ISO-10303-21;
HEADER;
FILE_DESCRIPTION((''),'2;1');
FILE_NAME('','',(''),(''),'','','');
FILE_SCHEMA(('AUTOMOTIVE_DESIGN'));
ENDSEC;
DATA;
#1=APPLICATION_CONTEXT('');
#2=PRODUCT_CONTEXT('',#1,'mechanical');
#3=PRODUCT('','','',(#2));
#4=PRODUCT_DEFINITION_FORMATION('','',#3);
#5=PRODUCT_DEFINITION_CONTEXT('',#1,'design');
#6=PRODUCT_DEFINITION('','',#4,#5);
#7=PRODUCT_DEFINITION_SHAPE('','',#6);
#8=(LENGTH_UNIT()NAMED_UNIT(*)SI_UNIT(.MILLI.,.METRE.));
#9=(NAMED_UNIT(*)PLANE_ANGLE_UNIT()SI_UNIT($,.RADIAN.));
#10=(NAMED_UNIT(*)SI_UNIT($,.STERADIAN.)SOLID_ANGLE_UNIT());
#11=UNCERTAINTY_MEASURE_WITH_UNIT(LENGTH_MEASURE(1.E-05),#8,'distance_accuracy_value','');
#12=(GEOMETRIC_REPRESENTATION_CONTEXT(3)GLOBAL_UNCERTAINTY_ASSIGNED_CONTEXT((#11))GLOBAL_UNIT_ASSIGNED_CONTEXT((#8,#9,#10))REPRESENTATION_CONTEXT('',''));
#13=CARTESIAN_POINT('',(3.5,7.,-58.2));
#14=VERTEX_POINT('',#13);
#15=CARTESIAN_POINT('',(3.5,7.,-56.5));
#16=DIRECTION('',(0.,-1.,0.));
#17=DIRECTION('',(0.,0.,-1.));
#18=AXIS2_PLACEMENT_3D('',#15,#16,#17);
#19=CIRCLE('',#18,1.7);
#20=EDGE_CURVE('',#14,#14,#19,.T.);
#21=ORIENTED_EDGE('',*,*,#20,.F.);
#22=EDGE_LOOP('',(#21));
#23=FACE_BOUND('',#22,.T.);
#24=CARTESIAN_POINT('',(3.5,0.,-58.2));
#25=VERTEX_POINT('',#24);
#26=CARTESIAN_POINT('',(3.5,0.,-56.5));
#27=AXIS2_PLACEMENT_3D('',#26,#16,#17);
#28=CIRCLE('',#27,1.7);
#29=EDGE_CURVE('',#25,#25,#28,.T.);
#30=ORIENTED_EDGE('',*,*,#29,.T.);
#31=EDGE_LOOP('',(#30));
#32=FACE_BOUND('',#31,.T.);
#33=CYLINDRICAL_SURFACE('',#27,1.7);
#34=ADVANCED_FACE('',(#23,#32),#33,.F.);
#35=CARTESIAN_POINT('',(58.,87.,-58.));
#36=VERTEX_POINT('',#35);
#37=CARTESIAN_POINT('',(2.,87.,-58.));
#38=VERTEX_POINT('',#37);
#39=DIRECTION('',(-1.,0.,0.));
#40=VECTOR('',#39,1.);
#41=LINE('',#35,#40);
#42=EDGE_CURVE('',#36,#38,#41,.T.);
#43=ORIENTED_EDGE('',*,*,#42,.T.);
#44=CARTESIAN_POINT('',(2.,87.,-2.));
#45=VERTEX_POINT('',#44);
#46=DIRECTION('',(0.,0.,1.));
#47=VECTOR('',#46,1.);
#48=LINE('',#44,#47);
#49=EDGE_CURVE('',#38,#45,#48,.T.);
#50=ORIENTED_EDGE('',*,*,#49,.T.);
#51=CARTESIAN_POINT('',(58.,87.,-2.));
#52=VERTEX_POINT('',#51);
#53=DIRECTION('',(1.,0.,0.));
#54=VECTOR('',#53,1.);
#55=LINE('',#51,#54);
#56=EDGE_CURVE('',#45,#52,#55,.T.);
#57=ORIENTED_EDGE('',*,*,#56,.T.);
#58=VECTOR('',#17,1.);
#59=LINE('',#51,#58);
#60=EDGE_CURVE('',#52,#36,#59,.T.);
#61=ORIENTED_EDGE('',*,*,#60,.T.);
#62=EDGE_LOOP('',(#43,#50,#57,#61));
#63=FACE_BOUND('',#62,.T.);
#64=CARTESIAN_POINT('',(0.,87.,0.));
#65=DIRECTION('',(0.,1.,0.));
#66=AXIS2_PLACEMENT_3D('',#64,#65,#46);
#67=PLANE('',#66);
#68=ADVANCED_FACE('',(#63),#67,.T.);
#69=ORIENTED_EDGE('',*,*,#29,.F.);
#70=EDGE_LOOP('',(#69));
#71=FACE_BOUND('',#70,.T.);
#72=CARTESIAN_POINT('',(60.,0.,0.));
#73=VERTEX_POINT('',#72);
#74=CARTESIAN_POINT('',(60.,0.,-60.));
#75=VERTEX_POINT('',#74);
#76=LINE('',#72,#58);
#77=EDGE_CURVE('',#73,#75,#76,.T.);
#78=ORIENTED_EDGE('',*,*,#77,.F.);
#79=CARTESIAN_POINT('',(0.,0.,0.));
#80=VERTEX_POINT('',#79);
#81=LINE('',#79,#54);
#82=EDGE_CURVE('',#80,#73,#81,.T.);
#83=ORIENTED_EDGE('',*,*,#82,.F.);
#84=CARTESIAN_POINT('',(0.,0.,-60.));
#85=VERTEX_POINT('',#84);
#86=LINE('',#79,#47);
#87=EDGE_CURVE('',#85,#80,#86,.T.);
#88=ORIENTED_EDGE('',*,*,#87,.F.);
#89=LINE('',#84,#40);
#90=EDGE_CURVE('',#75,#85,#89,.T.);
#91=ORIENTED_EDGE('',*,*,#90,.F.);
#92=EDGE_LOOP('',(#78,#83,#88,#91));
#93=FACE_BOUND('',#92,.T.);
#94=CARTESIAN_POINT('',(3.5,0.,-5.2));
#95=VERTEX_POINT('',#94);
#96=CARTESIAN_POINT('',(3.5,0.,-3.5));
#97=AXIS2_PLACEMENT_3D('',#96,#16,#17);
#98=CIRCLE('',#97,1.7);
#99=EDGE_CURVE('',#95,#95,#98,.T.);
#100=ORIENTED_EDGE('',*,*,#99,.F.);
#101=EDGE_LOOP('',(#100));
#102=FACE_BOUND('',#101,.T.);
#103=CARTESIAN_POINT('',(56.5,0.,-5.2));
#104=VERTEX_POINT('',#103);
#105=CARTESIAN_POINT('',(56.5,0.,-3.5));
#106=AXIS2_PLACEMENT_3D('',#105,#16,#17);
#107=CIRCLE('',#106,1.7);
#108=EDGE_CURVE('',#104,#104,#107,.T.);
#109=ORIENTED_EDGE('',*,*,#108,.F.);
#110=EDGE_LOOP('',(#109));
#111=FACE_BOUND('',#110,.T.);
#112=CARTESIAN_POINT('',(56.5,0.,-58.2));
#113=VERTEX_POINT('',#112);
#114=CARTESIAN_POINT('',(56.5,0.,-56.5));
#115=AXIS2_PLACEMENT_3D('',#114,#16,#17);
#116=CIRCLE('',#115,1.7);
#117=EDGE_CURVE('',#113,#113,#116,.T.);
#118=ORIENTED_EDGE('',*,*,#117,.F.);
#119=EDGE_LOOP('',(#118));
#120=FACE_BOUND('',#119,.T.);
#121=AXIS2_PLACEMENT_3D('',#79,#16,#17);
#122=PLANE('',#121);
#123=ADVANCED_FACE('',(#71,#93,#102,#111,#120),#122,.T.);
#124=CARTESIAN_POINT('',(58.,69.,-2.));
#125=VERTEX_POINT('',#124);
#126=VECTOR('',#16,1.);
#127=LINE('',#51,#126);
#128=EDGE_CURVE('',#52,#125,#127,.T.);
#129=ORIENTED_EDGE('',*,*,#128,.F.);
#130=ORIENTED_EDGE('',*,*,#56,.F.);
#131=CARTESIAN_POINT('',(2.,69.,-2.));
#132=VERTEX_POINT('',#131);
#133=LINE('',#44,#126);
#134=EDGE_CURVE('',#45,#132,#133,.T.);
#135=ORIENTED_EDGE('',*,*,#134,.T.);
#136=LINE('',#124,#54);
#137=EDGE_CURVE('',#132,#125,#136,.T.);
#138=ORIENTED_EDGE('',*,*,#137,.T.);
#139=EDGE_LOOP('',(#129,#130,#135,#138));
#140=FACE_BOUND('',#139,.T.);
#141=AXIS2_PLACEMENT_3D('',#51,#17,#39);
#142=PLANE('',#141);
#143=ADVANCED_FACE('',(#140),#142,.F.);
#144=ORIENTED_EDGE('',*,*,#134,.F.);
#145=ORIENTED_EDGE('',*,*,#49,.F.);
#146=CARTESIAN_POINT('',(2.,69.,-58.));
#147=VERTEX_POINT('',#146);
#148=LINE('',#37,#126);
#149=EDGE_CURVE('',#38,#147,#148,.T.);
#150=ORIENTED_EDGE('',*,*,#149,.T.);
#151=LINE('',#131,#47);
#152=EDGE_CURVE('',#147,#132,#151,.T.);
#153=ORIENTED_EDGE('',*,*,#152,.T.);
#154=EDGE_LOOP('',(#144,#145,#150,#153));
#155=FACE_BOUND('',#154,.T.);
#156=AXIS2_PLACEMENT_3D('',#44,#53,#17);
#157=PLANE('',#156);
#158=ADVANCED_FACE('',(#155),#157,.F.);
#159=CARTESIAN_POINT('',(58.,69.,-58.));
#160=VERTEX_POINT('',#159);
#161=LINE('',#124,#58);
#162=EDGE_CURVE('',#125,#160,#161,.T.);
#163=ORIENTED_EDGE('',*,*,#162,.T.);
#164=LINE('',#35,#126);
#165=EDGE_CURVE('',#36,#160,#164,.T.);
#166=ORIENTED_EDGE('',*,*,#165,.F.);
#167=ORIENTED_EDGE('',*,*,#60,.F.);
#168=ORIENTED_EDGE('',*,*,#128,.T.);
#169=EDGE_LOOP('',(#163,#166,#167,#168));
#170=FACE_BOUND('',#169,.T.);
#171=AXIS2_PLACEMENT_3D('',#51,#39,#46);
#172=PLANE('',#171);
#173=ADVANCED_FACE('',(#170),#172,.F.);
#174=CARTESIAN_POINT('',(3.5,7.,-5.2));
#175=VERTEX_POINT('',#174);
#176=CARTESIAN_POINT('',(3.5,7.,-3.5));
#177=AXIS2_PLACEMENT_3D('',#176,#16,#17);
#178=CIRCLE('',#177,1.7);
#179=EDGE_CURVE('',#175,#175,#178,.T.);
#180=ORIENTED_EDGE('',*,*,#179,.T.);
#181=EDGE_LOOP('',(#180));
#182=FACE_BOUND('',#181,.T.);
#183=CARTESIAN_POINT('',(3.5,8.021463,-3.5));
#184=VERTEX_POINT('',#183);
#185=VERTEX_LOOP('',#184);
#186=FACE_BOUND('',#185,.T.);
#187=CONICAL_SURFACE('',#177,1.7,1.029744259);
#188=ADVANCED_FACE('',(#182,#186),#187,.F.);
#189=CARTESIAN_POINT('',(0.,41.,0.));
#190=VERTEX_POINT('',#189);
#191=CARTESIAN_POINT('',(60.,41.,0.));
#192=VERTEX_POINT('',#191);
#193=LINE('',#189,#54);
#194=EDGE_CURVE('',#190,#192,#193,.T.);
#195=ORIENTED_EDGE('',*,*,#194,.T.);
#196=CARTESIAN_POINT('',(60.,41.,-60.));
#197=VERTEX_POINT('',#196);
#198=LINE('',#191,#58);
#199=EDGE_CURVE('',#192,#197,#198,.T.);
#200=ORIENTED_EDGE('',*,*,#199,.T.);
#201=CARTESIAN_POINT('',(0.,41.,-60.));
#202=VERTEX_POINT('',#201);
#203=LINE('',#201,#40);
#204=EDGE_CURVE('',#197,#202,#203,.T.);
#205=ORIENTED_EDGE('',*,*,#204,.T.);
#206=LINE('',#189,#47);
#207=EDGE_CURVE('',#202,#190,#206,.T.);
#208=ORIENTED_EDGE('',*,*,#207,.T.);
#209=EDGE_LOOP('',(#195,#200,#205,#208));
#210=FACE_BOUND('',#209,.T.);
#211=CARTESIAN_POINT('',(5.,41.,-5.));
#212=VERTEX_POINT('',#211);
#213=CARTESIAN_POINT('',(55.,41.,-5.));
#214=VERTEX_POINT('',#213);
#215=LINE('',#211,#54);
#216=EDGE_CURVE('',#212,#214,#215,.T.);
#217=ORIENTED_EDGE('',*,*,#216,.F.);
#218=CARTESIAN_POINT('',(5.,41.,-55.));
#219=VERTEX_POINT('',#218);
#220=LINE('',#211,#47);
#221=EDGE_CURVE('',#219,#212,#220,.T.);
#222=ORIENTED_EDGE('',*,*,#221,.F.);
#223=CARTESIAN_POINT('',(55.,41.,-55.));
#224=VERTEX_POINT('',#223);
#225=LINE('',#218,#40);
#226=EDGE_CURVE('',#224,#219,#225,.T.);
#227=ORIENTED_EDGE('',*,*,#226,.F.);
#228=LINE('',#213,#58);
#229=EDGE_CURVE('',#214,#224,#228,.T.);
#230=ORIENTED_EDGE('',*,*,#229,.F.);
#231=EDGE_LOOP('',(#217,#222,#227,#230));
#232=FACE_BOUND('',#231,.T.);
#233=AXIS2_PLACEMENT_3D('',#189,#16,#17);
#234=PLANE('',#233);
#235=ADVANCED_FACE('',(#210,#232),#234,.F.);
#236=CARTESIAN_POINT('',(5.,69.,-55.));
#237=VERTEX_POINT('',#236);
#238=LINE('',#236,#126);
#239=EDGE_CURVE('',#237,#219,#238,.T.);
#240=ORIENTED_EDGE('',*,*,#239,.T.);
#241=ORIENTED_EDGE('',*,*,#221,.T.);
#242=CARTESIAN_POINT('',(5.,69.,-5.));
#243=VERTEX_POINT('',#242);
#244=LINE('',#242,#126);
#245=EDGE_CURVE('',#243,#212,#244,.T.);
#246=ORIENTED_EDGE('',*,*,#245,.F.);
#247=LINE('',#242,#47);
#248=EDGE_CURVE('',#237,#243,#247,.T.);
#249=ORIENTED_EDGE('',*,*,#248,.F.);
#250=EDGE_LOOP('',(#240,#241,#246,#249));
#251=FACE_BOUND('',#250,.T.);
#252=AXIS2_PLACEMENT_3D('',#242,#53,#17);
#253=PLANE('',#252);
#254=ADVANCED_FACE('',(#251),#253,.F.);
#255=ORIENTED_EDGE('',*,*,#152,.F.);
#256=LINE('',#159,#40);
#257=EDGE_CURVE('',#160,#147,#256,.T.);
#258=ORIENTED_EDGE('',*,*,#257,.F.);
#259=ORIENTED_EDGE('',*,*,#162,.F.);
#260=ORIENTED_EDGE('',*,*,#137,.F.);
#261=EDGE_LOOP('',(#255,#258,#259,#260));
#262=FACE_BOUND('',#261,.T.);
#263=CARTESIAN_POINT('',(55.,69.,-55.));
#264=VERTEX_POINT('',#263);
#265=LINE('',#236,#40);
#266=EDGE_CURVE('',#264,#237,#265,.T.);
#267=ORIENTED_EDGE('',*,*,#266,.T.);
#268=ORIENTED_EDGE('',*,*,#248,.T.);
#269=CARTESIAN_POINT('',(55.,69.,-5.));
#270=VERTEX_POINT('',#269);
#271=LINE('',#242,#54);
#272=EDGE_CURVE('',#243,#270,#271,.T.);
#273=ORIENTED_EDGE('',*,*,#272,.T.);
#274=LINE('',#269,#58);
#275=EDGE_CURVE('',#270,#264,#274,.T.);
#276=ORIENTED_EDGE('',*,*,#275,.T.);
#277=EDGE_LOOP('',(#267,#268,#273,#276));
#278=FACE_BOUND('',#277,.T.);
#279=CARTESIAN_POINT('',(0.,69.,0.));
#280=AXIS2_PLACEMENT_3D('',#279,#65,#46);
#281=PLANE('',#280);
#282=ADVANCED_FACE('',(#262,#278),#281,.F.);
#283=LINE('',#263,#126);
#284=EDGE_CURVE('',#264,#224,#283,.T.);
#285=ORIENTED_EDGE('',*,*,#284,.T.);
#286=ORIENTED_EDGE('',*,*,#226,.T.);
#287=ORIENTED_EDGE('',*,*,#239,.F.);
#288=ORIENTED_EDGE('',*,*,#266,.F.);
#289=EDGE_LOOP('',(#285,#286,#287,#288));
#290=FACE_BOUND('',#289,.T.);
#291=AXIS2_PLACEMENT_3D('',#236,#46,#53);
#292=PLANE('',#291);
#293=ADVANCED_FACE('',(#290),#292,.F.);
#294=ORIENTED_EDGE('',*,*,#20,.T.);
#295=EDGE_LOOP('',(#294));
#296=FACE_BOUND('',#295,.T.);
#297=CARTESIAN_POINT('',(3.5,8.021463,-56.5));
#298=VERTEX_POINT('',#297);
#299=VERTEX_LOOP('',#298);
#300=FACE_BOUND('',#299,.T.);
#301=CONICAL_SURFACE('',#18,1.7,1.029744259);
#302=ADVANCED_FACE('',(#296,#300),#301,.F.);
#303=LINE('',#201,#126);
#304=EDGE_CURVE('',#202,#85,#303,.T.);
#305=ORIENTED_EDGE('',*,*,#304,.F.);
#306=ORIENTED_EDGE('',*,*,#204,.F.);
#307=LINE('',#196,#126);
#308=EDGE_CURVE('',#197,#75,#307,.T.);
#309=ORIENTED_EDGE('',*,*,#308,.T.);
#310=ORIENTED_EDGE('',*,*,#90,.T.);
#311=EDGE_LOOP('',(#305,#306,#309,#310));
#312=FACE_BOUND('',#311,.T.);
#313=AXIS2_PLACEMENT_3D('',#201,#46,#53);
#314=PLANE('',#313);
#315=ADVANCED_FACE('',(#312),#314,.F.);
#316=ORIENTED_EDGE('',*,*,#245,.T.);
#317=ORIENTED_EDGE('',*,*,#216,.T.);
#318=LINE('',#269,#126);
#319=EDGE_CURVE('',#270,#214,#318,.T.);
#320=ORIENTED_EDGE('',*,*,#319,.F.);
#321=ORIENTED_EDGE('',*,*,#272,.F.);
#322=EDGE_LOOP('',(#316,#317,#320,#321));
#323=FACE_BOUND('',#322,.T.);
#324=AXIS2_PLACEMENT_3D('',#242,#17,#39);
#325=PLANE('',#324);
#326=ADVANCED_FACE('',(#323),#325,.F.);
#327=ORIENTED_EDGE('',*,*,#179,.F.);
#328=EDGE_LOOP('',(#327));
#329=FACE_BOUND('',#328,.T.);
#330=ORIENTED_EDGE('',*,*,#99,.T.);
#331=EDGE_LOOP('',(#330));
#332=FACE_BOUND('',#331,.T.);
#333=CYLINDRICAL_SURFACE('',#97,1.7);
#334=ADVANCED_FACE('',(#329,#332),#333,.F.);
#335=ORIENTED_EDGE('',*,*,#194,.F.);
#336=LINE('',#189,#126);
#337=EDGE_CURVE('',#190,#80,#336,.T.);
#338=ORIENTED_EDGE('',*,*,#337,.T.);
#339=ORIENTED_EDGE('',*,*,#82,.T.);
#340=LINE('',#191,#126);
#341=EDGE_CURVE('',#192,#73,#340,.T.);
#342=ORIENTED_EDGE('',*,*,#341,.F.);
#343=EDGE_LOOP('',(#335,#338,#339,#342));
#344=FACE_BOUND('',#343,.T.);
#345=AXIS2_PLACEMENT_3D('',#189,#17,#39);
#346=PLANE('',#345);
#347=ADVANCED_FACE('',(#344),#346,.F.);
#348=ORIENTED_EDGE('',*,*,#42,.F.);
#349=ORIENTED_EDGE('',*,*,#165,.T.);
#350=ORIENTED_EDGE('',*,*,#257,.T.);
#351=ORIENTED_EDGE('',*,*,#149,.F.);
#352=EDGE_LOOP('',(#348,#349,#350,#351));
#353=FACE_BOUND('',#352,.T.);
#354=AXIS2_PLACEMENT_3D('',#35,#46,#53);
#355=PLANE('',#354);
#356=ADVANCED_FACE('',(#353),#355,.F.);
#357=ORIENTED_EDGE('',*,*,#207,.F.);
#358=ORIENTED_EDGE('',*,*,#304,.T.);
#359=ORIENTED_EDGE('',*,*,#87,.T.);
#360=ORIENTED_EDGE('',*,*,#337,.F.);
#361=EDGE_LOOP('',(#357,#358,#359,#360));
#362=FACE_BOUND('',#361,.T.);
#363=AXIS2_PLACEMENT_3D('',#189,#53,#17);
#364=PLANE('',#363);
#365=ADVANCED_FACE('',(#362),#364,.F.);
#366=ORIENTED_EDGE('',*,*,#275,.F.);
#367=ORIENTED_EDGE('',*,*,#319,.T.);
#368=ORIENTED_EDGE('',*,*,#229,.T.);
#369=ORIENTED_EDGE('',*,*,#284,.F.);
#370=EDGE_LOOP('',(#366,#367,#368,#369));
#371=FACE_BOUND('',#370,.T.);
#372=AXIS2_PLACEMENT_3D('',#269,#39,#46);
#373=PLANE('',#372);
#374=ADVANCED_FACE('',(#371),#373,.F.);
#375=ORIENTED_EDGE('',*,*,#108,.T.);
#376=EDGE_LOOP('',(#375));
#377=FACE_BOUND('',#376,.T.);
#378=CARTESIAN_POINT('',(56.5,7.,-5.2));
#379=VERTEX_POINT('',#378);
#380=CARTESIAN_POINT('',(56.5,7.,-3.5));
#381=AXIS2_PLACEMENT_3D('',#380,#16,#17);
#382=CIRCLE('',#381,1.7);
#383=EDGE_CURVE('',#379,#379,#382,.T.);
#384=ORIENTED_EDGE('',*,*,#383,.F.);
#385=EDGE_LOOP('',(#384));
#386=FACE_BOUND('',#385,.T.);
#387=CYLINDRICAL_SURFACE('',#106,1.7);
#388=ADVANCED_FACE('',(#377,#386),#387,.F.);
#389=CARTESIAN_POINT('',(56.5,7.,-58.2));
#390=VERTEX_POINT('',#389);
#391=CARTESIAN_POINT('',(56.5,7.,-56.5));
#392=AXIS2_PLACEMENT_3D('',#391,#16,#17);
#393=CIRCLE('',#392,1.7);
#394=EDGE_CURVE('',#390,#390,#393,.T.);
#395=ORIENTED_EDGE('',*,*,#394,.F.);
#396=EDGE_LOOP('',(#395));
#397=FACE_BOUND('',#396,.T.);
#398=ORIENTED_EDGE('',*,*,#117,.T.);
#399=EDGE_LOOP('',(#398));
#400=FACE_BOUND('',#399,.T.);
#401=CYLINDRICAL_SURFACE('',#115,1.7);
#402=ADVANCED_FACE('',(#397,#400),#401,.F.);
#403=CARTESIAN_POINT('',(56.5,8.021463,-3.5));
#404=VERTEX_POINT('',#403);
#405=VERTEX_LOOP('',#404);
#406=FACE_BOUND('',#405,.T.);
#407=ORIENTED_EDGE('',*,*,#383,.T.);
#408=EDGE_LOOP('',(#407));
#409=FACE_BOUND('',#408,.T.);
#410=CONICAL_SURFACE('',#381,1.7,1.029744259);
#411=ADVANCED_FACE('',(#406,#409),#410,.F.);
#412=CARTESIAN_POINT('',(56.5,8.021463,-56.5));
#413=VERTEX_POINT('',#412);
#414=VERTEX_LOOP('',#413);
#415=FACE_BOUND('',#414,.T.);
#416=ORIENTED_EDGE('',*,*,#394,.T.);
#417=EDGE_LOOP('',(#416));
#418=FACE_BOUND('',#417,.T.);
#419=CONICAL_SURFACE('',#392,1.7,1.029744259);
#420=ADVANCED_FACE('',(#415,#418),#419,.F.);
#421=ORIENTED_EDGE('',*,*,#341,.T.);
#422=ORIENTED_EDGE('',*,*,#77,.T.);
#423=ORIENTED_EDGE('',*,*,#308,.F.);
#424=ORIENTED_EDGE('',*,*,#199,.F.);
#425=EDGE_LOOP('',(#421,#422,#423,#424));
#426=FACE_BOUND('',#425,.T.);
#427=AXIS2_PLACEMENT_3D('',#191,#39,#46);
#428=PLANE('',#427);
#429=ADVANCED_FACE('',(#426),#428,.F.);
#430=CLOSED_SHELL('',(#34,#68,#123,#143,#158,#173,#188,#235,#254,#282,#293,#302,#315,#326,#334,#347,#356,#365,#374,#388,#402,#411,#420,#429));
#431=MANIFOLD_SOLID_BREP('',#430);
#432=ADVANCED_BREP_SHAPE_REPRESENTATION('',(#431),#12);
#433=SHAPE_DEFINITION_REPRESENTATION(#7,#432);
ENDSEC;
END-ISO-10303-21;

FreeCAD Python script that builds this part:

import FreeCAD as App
import Part
import Sketcher
from FreeCAD import Vector

doc = App.newDocument("Part")
body = doc.addObject("PartDesign::Body", "Body")

# Sketch on XZ plane
sketch1 = body.newObject("Sketcher::SketchObject", "Sketch")
sketch1.AttachmentSupport = (doc.getObject("XZ_Plane"), [""])
sketch1.MapMode = "FlatFace"
sketch1.addGeometry([
    Part.LineSegment(Vector(0, -60, 0), Vector(0, 0, 0)),
    Part.LineSegment(Vector(0, 0, 0), Vector(60, 0, 0)),
    Part.LineSegment(Vector(60, 0, 0), Vector(60, -60, 0)),
    Part.LineSegment(Vector(60, -60, 0), Vector(0, -60, 0)),
], False)
sketch1.addConstraint([
    Sketcher.Constraint("Coincident", 0, 2, 1, 1),
    Sketcher.Constraint("Coincident", 1, 2, 2, 1),
    Sketcher.Constraint("Coincident", 2, 2, 3, 1),
    Sketcher.Constraint("Coincident", 3, 2, 0, 1),
    Sketcher.Constraint("Vertical", 0),
    Sketcher.Constraint("Horizontal", 1),
    Sketcher.Constraint("Vertical", 2),
    Sketcher.Constraint("Horizontal", 3),
    Sketcher.Constraint("Coincident", 0, 2, -1, 1),
    Sketcher.Constraint("Equal", 3, 0),
    Sketcher.Constraint("DistanceX", 1, 1, 1, 2, 60.0),
])
pad1 = body.newObject("PartDesign::Pad", "Pad")
pad1.Profile = sketch1
pad1.Length = 41
pad1.Reversed = True

# Sketch on XZ plane
sketch2 = body.newObject("Sketcher::SketchObject", "Sketch001")
sketch2.AttachmentSupport = (doc.getObject("XZ_Plane"), [""])
sketch2.MapMode = "FlatFace"
sketch2.addGeometry([
    Part.Circle(Vector(3.5, -3.5, 0), Vector(0, 0, 1), 1.7),
    Part.Circle(Vector(56.5, -3.5, 0), Vector(0, 0, 1), 1.7),
    Part.Circle(Vector(56.5, -56.5, 0), Vector(0, 0, 1), 1.7),
    Part.Circle(Vector(3.5, -56.5, 0), Vector(0, 0, 1), 1.7),
], False)
sketch2.addConstraint([
    Sketcher.Constraint("Equal", 0, 1),
    Sketcher.Constraint("Equal", 1, 2),
    Sketcher.Constraint("Equal", 2, 3),
    Sketcher.Constraint("Horizontal", 0, 3, 1, 3),
    Sketcher.Constraint("Horizontal", 2, 3, 3, 3),
    Sketcher.Constraint("Vertical", 1, 3, 2, 3),
    Sketcher.Constraint("Vertical", 0, 3, 3, 3),
    Sketcher.Constraint("Diameter", 0, 3.4),
    Sketcher.Constraint("DistanceX", 0, 3, 1, 3, 53.0),
    Sketcher.Constraint("DistanceY", 2, 3, 1, 3, 53.0),
    Sketcher.Constraint("DistanceX", -1, 1, 0, 3, 3.5),
    Sketcher.Constraint("DistanceY", 0, 3, -1, 1, 3.5),
])
doc.recompute()
hole = body.newObject("PartDesign::Hole", "Hole")
hole.Profile = sketch2
hole.ThreadType = "None"
hole.Diameter = 3.4
hole.DepthType = "Dimension"
hole.Depth = 7
hole.DrillPoint = "Angled"
hole.DrillPointAngle = 118

# Sketch on XZ plane
sketch3 = body.newObject("Sketcher::SketchObject", "Sketch002")
sketch3.AttachmentSupport = (doc.getObject("XZ_Plane"), [""])
sketch3.MapMode = "FlatFace"
sketch3.AttachmentOffset = App.Placement(Vector(0, 0, -41), App.Rotation())
sketch3.addGeometry([
    Part.LineSegment(Vector(5, -55, 0), Vector(5, -5, 0)),
    Part.LineSegment(Vector(5, -5, 0), Vector(55, -5, 0)),
    Part.LineSegment(Vector(55, -5, 0), Vector(55, -55, 0)),
    Part.LineSegment(Vector(55, -55, 0), Vector(5, -55, 0)),
], False)
sketch3.addConstraint([
    Sketcher.Constraint("Coincident", 0, 2, 1, 1),
    Sketcher.Constraint("Coincident", 1, 2, 2, 1),
    Sketcher.Constraint("Coincident", 2, 2, 3, 1),
    Sketcher.Constraint("Coincident", 3, 2, 0, 1),
    Sketcher.Constraint("Vertical", 0),
    Sketcher.Constraint("Horizontal", 1),
    Sketcher.Constraint("Vertical", 2),
    Sketcher.Constraint("Horizontal", 3),
    Sketcher.Constraint("Equal", 3, 0),
    Sketcher.Constraint("DistanceX", 1, 1, 1, 2, 50.0),
    Sketcher.Constraint("DistanceX", -1, 1, 0, 2, 5.0),
    Sketcher.Constraint("DistanceY", 0, 2, -1, 1, 5.0),
])
pad2 = body.newObject("PartDesign::Pad", "Pad001")
pad2.Profile = sketch3
pad2.Length = 28
pad2.Reversed = True

# Sketch on XZ plane
sketch4 = body.newObject("Sketcher::SketchObject", "Sketch003")
sketch4.AttachmentSupport = (doc.getObject("XZ_Plane"), [""])
sketch4.MapMode = "FlatFace"
sketch4.AttachmentOffset = App.Placement(Vector(0, 0, -69), App.Rotation())
sketch4.addGeometry([
    Part.LineSegment(Vector(2, -58, 0), Vector(2, -2, 0)),
    Part.LineSegment(Vector(2, -2, 0), Vector(58, -2, 0)),
    Part.LineSegment(Vector(58, -2, 0), Vector(58, -58, 0)),
    Part.LineSegment(Vector(58, -58, 0), Vector(2, -58, 0)),
], False)
sketch4.addConstraint([
    Sketcher.Constraint("Coincident", 0, 2, 1, 1),
    Sketcher.Constraint("Coincident", 1, 2, 2, 1),
    Sketcher.Constraint("Coincident", 2, 2, 3, 1),
    Sketcher.Constraint("Coincident", 3, 2, 0, 1),
    Sketcher.Constraint("Vertical", 0),
    Sketcher.Constraint("Horizontal", 1),
    Sketcher.Constraint("Vertical", 2),
    Sketcher.Constraint("Horizontal", 3),
    Sketcher.Constraint("Equal", 3, 0),
    Sketcher.Constraint("DistanceX", 1, 1, 1, 2, 56.0),
    Sketcher.Constraint("DistanceX", -1, 1, 0, 2, 2.0),
    Sketcher.Constraint("DistanceY", 0, 2, -1, 1, 2.0),
])
pad3 = body.newObject("PartDesign::Pad", "Pad002")
pad3.Profile = sketch4
pad3.Length = 18
pad3.Reversed = True

doc.recompute()
